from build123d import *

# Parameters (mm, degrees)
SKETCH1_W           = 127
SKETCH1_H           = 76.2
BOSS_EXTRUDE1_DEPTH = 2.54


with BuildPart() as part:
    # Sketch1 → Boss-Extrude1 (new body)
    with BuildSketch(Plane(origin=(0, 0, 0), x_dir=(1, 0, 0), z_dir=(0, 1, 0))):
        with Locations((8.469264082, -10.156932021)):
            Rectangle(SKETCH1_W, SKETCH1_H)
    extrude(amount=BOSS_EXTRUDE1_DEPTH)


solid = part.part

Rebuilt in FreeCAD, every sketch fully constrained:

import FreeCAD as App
import Part
import Sketcher
Q = App.Units.Quantity


def add_polygon(sketch, points):
    """Adds a closed chain of lines whose ends are joined by coincident constraints."""
    first, n = sketch.GeometryCount, len(points)
    for a, b in zip(points, points[1:] + points[:1]):
        sketch.addGeometry(Part.LineSegment(App.Vector(*a, 0), App.Vector(*b, 0)), False)
    for i in range(n):
        sketch.addConstraint(Sketcher.Constraint("Coincident", first + i, 2, first + (i + 1) % n, 1))

doc = App.newDocument("Part")
params = doc.addObject("Spreadsheet::Sheet", "Params")
for row, (alias, value) in enumerate([
    ("sketch1_width", "5 in"),
    ("sketch1_height", "3 in"),
    ("pad1_length", "0.1 in"),
], start=1):
    params.set(f"A{row}", alias)
    params.set(f"B{row}", "=" + value)
    params.setAlias(f"B{row}", alias)

body = doc.addObject("PartDesign::Body", "Body")

sketch1 = body.newObject("Sketcher::SketchObject", "Sketch")
sketch1.AttachmentSupport = (doc.getObject("XZ_Plane"), [""])
sketch1.MapMode = "FlatFace"
add_polygon(sketch1, [(-55.030736, -27.943068), (-55.030736, 48.256932), (71.969264, 48.256932), (71.969264, -27.943068)])
sketch1.addConstraint([
    Sketcher.Constraint("Vertical", 0),
    Sketcher.Constraint("Horizontal", 1),
    Sketcher.Constraint("Vertical", 2),
    Sketcher.Constraint("Horizontal", 3),
    Sketcher.Constraint("DistanceX", 1, 1, 1, 2, Q("5 in")),
    Sketcher.Constraint("DistanceY", 0, 1, 0, 2, Q("3 in")),
    Sketcher.Constraint("DistanceX", 0, 2, -1, 1, Q("55.030736 mm")),
    Sketcher.Constraint("DistanceY", -1, 1, 0, 2, Q("48.256932 mm")),
])
sketch1.setExpression("Constraints[8]", "Params.sketch1_width")
sketch1.setExpression("Constraints[9]", "Params.sketch1_height")
pad1 = body.newObject("PartDesign::Pad", "Pad")
pad1.Profile = sketch1
pad1.setExpression("Length", "Params.pad1_length")
pad1.Reversed = True

doc.recompute()
